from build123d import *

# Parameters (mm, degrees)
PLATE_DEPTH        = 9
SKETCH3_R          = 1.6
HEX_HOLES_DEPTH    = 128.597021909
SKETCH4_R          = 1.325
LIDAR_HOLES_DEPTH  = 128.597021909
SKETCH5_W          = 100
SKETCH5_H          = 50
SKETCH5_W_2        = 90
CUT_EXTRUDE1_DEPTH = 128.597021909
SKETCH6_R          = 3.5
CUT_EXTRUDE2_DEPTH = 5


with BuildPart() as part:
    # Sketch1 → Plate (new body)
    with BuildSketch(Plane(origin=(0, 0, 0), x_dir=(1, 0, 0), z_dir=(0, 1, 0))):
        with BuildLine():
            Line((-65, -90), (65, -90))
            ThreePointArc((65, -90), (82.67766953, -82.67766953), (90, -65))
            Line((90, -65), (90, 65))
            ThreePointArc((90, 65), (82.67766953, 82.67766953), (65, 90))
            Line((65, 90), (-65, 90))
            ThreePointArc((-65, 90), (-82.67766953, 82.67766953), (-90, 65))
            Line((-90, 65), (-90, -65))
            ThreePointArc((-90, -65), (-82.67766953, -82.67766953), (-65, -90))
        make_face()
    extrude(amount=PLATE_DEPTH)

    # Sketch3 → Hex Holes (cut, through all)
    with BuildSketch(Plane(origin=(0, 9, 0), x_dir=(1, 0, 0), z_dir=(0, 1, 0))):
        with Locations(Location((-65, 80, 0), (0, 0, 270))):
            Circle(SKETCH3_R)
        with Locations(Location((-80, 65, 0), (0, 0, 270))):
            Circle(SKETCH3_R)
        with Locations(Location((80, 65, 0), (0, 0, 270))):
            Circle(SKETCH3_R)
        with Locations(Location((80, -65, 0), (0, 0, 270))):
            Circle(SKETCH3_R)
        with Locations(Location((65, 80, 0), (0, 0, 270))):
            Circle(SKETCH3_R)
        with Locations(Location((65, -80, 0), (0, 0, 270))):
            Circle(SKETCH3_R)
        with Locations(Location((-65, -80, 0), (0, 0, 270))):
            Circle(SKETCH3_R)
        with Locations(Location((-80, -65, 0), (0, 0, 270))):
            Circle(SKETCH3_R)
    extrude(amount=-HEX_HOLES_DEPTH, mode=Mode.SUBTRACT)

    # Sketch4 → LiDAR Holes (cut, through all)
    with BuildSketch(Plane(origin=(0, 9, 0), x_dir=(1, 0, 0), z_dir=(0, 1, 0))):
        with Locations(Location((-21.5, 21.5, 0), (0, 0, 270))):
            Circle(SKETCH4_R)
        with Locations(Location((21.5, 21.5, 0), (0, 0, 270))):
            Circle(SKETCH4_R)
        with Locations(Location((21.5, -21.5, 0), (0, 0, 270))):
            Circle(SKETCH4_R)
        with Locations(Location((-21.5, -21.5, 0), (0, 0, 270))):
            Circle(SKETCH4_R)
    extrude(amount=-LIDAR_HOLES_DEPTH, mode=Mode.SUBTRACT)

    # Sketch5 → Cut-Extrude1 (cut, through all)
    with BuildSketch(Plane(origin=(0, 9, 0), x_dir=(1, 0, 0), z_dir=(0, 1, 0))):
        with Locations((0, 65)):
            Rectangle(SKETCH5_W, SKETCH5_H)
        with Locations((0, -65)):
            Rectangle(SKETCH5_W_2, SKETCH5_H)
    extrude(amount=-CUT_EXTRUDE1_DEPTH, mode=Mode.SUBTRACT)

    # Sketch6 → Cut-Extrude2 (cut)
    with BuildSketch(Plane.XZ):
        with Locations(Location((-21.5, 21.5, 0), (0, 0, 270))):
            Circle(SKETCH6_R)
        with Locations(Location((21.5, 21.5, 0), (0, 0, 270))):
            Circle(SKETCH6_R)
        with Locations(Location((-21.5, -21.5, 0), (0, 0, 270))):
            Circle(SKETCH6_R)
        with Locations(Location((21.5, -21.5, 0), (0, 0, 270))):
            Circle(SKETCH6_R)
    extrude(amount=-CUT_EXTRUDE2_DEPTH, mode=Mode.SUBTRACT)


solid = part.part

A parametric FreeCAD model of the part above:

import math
import FreeCAD as App
import Part
import Sketcher

doc = App.newDocument("Part")
body = doc.addObject("PartDesign::Body", "Body")

sketch1 = body.newObject("Sketcher::SketchObject", "Sketch")
sketch1.AttachmentSupport = (doc.getObject("XZ_Plane"), [""])
sketch1.MapMode = "FlatFace"
sketch1.addGeometry([
    Part.LineSegment(App.Vector(-65, 90, 0), App.Vector(65, 90, 0)),
    Part.ArcOfCircle(Part.Circle(App.Vector(65, 65, 0), App.Vector(0, 0, 1), 25), math.radians(0), math.radians(90)),
    Part.LineSegment(App.Vector(90, 65, 0), App.Vector(90, -65, 0)),
    Part.ArcOfCircle(Part.Circle(App.Vector(65, -65, 0), App.Vector(0, 0, 1), 25), math.radians(-90), math.radians(0)),
    Part.LineSegment(App.Vector(65, -90, 0), App.Vector(-65, -90, 0)),
    Part.ArcOfCircle(Part.Circle(App.Vector(-65, -65, 0), App.Vector(0, 0, 1), 25), math.radians(180), math.radians(270)),
    Part.LineSegment(App.Vector(-90, -65, 0), App.Vector(-90, 65, 0)),
    Part.ArcOfCircle(Part.Circle(App.Vector(-65, 65, 0), App.Vector(0, 0, 1), 25), math.radians(90), math.radians(180)),
], False)
sketch1.addConstraint([
    Sketcher.Constraint("Tangent", 0, 2, 1, 2),
    Sketcher.Constraint("Tangent", 1, 1, 2, 1),
    Sketcher.Constraint("Tangent", 2, 2, 3, 2),
    Sketcher.Constraint("Tangent", 3, 1, 4, 1),
    Sketcher.Constraint("Tangent", 4, 2, 5, 2),
    Sketcher.Constraint("Tangent", 5, 1, 6, 1),
    Sketcher.Constraint("Tangent", 6, 2, 7, 2),
    Sketcher.Constraint("Tangent", 7, 1, 0, 1),
    Sketcher.Constraint("Horizontal", 0),
    Sketcher.Constraint("Vertical", 2),
    Sketcher.Constraint("Horizontal", 4),
    Sketcher.Constraint("Vertical", 6),
    Sketcher.Constraint("Equal", 1, 3),
    Sketcher.Constraint("Equal", 3, 5),
    Sketcher.Constraint("Equal", 5, 7),
    Sketcher.Constraint("Symmetric", 1, 3, 5, 3, -1, 1),
    Sketcher.Constraint("Equal", 4, 2),
    Sketcher.Constraint("Radius", 1, 25.0),
    Sketcher.Constraint("DistanceX", 0, 1, 0, 2, 130.0),
])
pad1 = body.newObject("PartDesign::Pad", "Pad")
pad1.Profile = sketch1
pad1.Length = 9
pad1.Reversed = True

sketch2 = body.newObject("Sketcher::SketchObject", "Sketch001")
sketch2.AttachmentSupport = (doc.getObject("XZ_Plane"), [""])
sketch2.MapMode = "FlatFace"
sketch2.AttachmentOffset = App.Placement(App.Vector(0, 0, -9), App.Rotation())
sketch2.addGeometry([
    Part.Circle(App.Vector(-65, -80, 0), App.Vector(0, 0, 1), 1.6),
    Part.Circle(App.Vector(-80, -65, 0), App.Vector(0, 0, 1), 1.6),
    Part.Circle(App.Vector(80, -65, 0), App.Vector(0, 0, 1), 1.6),
    Part.Circle(App.Vector(80, 65, 0), App.Vector(0, 0, 1), 1.6),
    Part.Circle(App.Vector(65, -80, 0), App.Vector(0, 0, 1), 1.6),
    Part.Circle(App.Vector(65, 80, 0), App.Vector(0, 0, 1), 1.6),
    Part.Circle(App.Vector(-65, 80, 0), App.Vector(0, 0, 1), 1.6),
    Part.Circle(App.Vector(-80, 65, 0), App.Vector(0, 0, 1), 1.6),
], False)
sketch2.addConstraint([
    Sketcher.Constraint("Equal", 0, 1),
    Sketcher.Constraint("Equal", 1, 2),
    Sketcher.Constraint("Equal", 2, 3),
    Sketcher.Constraint("Equal", 3, 4),
    Sketcher.Constraint("Equal", 4, 5),
    Sketcher.Constraint("Equal", 5, 6),
    Sketcher.Constraint("Equal", 6, 7),
    Sketcher.Constraint("Symmetric", 1, 3, 3, 3, -1, 1),
    Sketcher.Constraint("Symmetric", 0, 3, 5, 3, -1, 1),
    Sketcher.Constraint("Symmetric", 4, 3, 6, 3, -1, 1),
    Sketcher.Constraint("Symmetric", 2, 3, 7, 3, -1, 1),
    Sketcher.Constraint("Symmetric", 1, 3, 2, 3, -2),
    Sketcher.Constraint("Symmetric", 0, 3, 4, 3, -2),
    Sketcher.Constraint("Diameter", 0, 3.2),
    Sketcher.Constraint("DistanceX", 0, 3, -1, 1, 65.0),
    Sketcher.Constraint("DistanceY", 0, 3, -1, 1, 80.0),
    Sketcher.Constraint("DistanceX", 1, 3, -1, 1, 80.0),
    Sketcher.Constraint("DistanceY", 1, 3, -1, 1, 65.0),
])
pocket1 = body.newObject("PartDesign::Pocket", "Pocket")
pocket1.Profile = sketch2
pocket1.Type = "ThroughAll"
pocket1.Reversed = True

sketch3 = body.newObject("Sketcher::SketchObject", "Sketch002")
sketch3.AttachmentSupport = (doc.getObject("XZ_Plane"), [""])
sketch3.MapMode = "FlatFace"
sketch3.AttachmentOffset = App.Placement(App.Vector(0, 0, -9), App.Rotation())
sketch3.addGeometry([
    Part.Circle(App.Vector(-21.5, -21.5, 0), App.Vector(0, 0, 1), 1.3),
    Part.Circle(App.Vector(21.5, -21.5, 0), App.Vector(0, 0, 1), 1.3),
    Part.Circle(App.Vector(21.5, 21.5, 0), App.Vector(0, 0, 1), 1.3),
    Part.Circle(App.Vector(-21.5, 21.5, 0), App.Vector(0, 0, 1), 1.3),
], False)
sketch3.addConstraint([
    Sketcher.Constraint("Equal", 0, 1),
    Sketcher.Constraint("Equal", 1, 2),
    Sketcher.Constraint("Equal", 2, 3),
    Sketcher.Constraint("Symmetric", 0, 3, 2, 3, -1, 1),
    Sketcher.Constraint("Symmetric", 1, 3, 3, 3, -1, 1),
    Sketcher.Constraint("Symmetric", 0, 3, 1, 3, -2),
    Sketcher.Constraint("Diameter", 0, 2.65),
    Sketcher.Constraint("DistanceX", 0, 3, 1, 3, 43.0),
    Sketcher.Constraint("DistanceY", 1, 3, 2, 3, 43.0),
])
pocket2 = body.newObject("PartDesign::Pocket", "Pocket001")
pocket2.Profile = sketch3
pocket2.Type = "ThroughAll"
pocket2.Reversed = True

sketch4 = body.newObject("Sketcher::SketchObject", "Sketch003")
sketch4.AttachmentSupport = (doc.getObject("XZ_Plane"), [""])
sketch4.MapMode = "FlatFace"
sketch4.AttachmentOffset = App.Placement(App.Vector(0, 0, -9), App.Rotation())
sketch4.addGeometry([
    Part.LineSegment(App.Vector(-50, -90, 0), App.Vector(-50, -40, 0)),
    Part.LineSegment(App.Vector(-50, -40, 0), App.Vector(50, -40, 0)),
    Part.LineSegment(App.Vector(50, -40, 0), App.Vector(50, -90, 0)),
    Part.LineSegment(App.Vector(50, -90, 0), App.Vector(-50, -90, 0)),
    Part.LineSegment(App.Vector(-45, 40, 0), App.Vector(-45, 90, 0)),
    Part.LineSegment(App.Vector(-45, 90, 0), App.Vector(45, 90, 0)),
    Part.LineSegment(App.Vector(45, 90, 0), App.Vector(45, 40, 0)),
    Part.LineSegment(App.Vector(45, 40, 0), App.Vector(-45, 40, 0)),
], False)
sketch4.addConstraint([
    Sketcher.Constraint("Coincident", 0, 2, 1, 1),
    Sketcher.Constraint("Coincident", 1, 2, 2, 1),
    Sketcher.Constraint("Coincident", 2, 2, 3, 1),
    Sketcher.Constraint("Coincident", 3, 2, 0, 1),
    Sketcher.Constraint("Coincident", 4, 2, 5, 1),
    Sketcher.Constraint("Coincident", 5, 2, 6, 1),
    Sketcher.Constraint("Coincident", 6, 2, 7, 1),
    Sketcher.Constraint("Coincident", 7, 2, 4, 1),
    Sketcher.Constraint("Vertical", 0),
    Sketcher.Constraint("Horizontal", 1),
    Sketcher.Constraint("Vertical", 2),
    Sketcher.Constraint("Horizontal", 3),
    Sketcher.Constraint("Vertical", 4),
    Sketcher.Constraint("Horizontal", 5),
    Sketcher.Constraint("Vertical", 6),
    Sketcher.Constraint("Horizontal", 7),
    Sketcher.Constraint("Equal", 2, 4),
    Sketcher.Constraint("DistanceX", 1, 1, 1, 2, 100.0),
    Sketcher.Constraint("DistanceX", 5, 1, 5, 2, 90.0),
    Sketcher.Constraint("DistanceY", 0, 1, 0, 2, 50.0),
    Sketcher.Constraint("DistanceX", 0, 2, -1, 1, 50.0),
    Sketcher.Constraint("DistanceY", 0, 2, -1, 1, 40.0),
    Sketcher.Constraint("DistanceX", 4, 2, -1, 1, 45.0),
    Sketcher.Constraint("DistanceY", -1, 1, 4, 2, 90.0),
])
pocket3 = body.newObject("PartDesign::Pocket", "Pocket002")
pocket3.Profile = sketch4
pocket3.Type = "ThroughAll"
pocket3.Reversed = True

sketch5 = body.newObject("Sketcher::SketchObject", "Sketch004")
sketch5.AttachmentSupport = (doc.getObject("XZ_Plane"), [""])
sketch5.MapMode = "FlatFace"
sketch5.addGeometry([
    Part.Circle(App.Vector(-21.5, 21.5, 0), App.Vector(0, 0, 1), 3.5),
    Part.Circle(App.Vector(21.5, 21.5, 0), App.Vector(0, 0, 1), 3.5),
    Part.Circle(App.Vector(-21.5, -21.5, 0), App.Vector(0, 0, 1), 3.5),
    Part.Circle(App.Vector(21.5, -21.5, 0), App.Vector(0, 0, 1), 3.5),
], False)
sketch5.addConstraint([
    Sketcher.Constraint("Equal", 0, 1),
    Sketcher.Constraint("Equal", 1, 2),
    Sketcher.Constraint("Equal", 2, 3),
    Sketcher.Constraint("Symmetric", 1, 3, 2, 3, -1, 1),
    Sketcher.Constraint("Symmetric", 0, 3, 3, 3, -1, 1),
    Sketcher.Constraint("Symmetric", 0, 3, 1, 3, -2),
    Sketcher.Constraint("Diameter", 0, 7.0),
    Sketcher.Constraint("DistanceX", 0, 3, 1, 3, 43.0),
    Sketcher.Constraint("DistanceY", 2, 3, 0, 3, 43.0),
])
pocket4 = body.newObject("PartDesign::Pocket", "Pocket003")
pocket4.Profile = sketch5
pocket4.Length = 5

doc.recompute()
